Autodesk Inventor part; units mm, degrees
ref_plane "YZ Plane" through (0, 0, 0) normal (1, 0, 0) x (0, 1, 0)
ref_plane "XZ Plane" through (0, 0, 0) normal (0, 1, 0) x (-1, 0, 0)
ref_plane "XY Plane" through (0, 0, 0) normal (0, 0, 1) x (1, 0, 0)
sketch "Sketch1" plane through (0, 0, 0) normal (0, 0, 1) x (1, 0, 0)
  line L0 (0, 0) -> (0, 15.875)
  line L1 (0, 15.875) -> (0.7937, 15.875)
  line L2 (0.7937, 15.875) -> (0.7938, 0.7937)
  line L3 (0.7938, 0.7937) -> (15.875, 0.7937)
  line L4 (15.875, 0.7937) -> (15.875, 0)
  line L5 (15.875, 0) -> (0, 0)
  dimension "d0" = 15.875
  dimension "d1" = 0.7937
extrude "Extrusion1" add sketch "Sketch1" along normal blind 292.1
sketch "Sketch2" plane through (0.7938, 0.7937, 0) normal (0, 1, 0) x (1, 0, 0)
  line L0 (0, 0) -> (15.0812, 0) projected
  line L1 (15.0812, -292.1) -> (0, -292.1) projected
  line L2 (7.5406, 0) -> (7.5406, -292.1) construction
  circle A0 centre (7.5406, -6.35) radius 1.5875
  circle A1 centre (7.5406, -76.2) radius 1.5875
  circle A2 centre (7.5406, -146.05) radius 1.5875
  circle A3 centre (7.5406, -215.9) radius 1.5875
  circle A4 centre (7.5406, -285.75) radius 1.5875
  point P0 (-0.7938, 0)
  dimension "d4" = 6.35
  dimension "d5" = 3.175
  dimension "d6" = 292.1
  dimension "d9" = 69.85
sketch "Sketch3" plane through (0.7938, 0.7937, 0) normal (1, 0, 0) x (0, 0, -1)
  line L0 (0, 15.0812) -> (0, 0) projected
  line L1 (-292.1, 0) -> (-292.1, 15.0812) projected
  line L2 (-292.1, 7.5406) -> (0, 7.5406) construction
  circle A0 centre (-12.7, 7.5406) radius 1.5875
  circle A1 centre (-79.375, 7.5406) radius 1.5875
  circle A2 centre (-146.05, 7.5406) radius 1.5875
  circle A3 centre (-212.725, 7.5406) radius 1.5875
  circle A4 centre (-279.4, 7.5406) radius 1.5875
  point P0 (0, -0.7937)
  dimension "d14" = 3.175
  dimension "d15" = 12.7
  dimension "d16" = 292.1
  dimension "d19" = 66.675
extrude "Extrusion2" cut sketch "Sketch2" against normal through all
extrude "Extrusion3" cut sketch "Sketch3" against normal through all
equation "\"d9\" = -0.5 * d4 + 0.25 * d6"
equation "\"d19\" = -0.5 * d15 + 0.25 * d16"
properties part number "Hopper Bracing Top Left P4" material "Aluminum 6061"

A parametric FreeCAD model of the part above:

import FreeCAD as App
import Part
import Sketcher
Q = App.Units.Quantity


def add_polygon(sketch, points):
    """Adds a closed chain of lines whose ends are joined by coincident constraints."""
    first, n = sketch.GeometryCount, len(points)
    for a, b in zip(points, points[1:] + points[:1]):
        sketch.addGeometry(Part.LineSegment(App.Vector(*a, 0), App.Vector(*b, 0)), False)
    for i in range(n):
        sketch.addConstraint(Sketcher.Constraint("Coincident", first + i, 2, first + (i + 1) % n, 1))

doc = App.newDocument("Part")
params = doc.addObject("Spreadsheet::Sheet", "Params")
for row, (alias, value) in enumerate([
    ("sketch1_width", "0.625 in"),
    ("sketch1_width2", "0.031248 in"),
    ("pad1_length", "11.5 in"),
    ("sketch2_diameter", "0.125 in"),
    ("sketch3_diameter", "0.125 in"),
], start=1):
    params.set(f"A{row}", alias)
    params.set(f"B{row}", "=" + value)
    params.setAlias(f"B{row}", alias)

body = doc.addObject("PartDesign::Body", "Body")

# Sketch on XY plane
sketch1 = body.newObject("Sketcher::SketchObject", "Sketch")
sketch1.AttachmentSupport = (doc.getObject("XY_Plane"), [""])
sketch1.MapMode = "FlatFace"
add_polygon(sketch1, [(0, 15.9), (0, 0), (15.9, 0), (15.9, 0.8), (0.8, 0.8), (0.8, 15.9)])  # lines 0-5
sketch1.addConstraint(Sketcher.Constraint("Vertical", 0))
sketch1.addConstraint(Sketcher.Constraint("Horizontal", 1))
sketch1.addConstraint(Sketcher.Constraint("Vertical", 2))
sketch1.addConstraint(Sketcher.Constraint("Horizontal", 3))
sketch1.addConstraint(Sketcher.Constraint("Vertical", 4))
sketch1.addConstraint(Sketcher.Constraint("Horizontal", 5))
sketch1.addConstraint(Sketcher.Constraint("Coincident", 0, 2, -1, 1))
sketch1.addConstraint(Sketcher.Constraint("Equal", 1, 0))
sketch1.addConstraint(Sketcher.Constraint("Equal", 5, 2))
sketch1.addConstraint(Sketcher.Constraint("DistanceX", 1, 1, 1, 2, Q("0.625 in")))
sketch1.addConstraint(Sketcher.Constraint("DistanceX", 5, 2, 5, 1, Q("0.031248 in")))
sketch1.setExpression("Constraints[15]", "Params.sketch1_width")
sketch1.setExpression("Constraints[16]", "Params.sketch1_width2")
pad1 = body.newObject("PartDesign::Pad", "Pad")
pad1.Profile = sketch1
pad1.setExpression("Length", "Params.pad1_length")

# Sketch on XZ plane
sketch2 = body.newObject("Sketcher::SketchObject", "Sketch001")
sketch2.AttachmentSupport = (doc.getObject("XZ_Plane"), [""])
sketch2.MapMode = "FlatFace"
sketch2.AttachmentOffset = App.Placement(App.Vector(0, 0, -0.031248 * 25.4), App.Rotation())
sketch2.addGeometry(Part.Circle(App.Vector(8.3, 6.3, 0), App.Vector(0, 0, 1), 1.6), False)
sketch2.addGeometry(Part.Circle(App.Vector(8.3, 76.2, 0), App.Vector(0, 0, 1), 1.6), False)
sketch2.addGeometry(Part.Circle(App.Vector(8.3, 146.1, 0), App.Vector(0, 0, 1), 1.6), False)
sketch2.addGeometry(Part.Circle(App.Vector(8.3, 215.9, 0), App.Vector(0, 0, 1), 1.6), False)
sketch2.addGeometry(Part.Circle(App.Vector(8.3, 285.8, 0), App.Vector(0, 0, 1), 1.6), False)
sketch2.addConstraint(Sketcher.Constraint("Equal", 0, 1))
sketch2.addConstraint(Sketcher.Constraint("Equal", 1, 2))
sketch2.addConstraint(Sketcher.Constraint("Equal", 2, 3))
sketch2.addConstraint(Sketcher.Constraint("Equal", 3, 4))
sketch2.addConstraint(Sketcher.Constraint("Vertical", 0, 3, 1, 3))
sketch2.addConstraint(Sketcher.Constraint("Vertical", 1, 3, 2, 3))
sketch2.addConstraint(Sketcher.Constraint("Vertical", 2, 3, 3, 3))
sketch2.addConstraint(Sketcher.Constraint("Vertical", 3, 3, 4, 3))
sketch2.addConstraint(Sketcher.Constraint("Diameter", 0, Q("0.125 in")))
sketch2.addConstraint(Sketcher.Constraint("DistanceY", -1, 1, 0, 3, Q("0.25 in")))
sketch2.addConstraint(Sketcher.Constraint("DistanceY", 0, 3, 1, 3, Q("2.75 in")))
sketch2.addConstraint(Sketcher.Constraint("DistanceY", 1, 3, 2, 3, Q("2.75 in")))
sketch2.addConstraint(Sketcher.Constraint("DistanceY", 2, 3, 3, 3, Q("2.75 in")))
sketch2.addConstraint(Sketcher.Constraint("DistanceY", 3, 3, 4, 3, Q("2.75 in")))
sketch2.addConstraint(Sketcher.Constraint("DistanceX", -1, 1, 0, 3, Q("0.328126 in")))
sketch2.setExpression("Constraints[8]", "Params.sketch2_diameter")
pocket1 = body.newObject("PartDesign::Pocket", "Pocket")
pocket1.Profile = sketch2
pocket1.Type = "ThroughAll"
pocket1.Reversed = True

# Sketch on YZ plane
sketch3 = body.newObject("Sketcher::SketchObject", "Sketch002")
sketch3.AttachmentSupport = (doc.getObject("YZ_Plane"), [""])
sketch3.MapMode = "FlatFace"
sketch3.AttachmentOffset = App.Placement(App.Vector(0, 0, 0.031252 * 25.4), App.Rotation())
sketch3.addGeometry(Part.Circle(App.Vector(8.3, 12.7, 0), App.Vector(0, 0, 1), 1.6), False)
sketch3.addGeometry(Part.Circle(App.Vector(8.3, 79.4, 0), App.Vector(0, 0, 1), 1.6), False)
sketch3.addGeometry(Part.Circle(App.Vector(8.3, 146.1, 0), App.Vector(0, 0, 1), 1.6), False)
sketch3.addGeometry(Part.Circle(App.Vector(8.3, 212.7, 0), App.Vector(0, 0, 1), 1.6), False)
sketch3.addGeometry(Part.Circle(App.Vector(8.3, 279.4, 0), App.Vector(0, 0, 1), 1.6), False)
sketch3.addConstraint(Sketcher.Constraint("Equal", 0, 1))
sketch3.addConstraint(Sketcher.Constraint("Equal", 1, 2))
sketch3.addConstraint(Sketcher.Constraint("Equal", 2, 3))
sketch3.addConstraint(Sketcher.Constraint("Equal", 3, 4))
sketch3.addConstraint(Sketcher.Constraint("Vertical", 0, 3, 1, 3))
sketch3.addConstraint(Sketcher.Constraint("Vertical", 1, 3, 2, 3))
sketch3.addConstraint(Sketcher.Constraint("Vertical", 2, 3, 3, 3))
sketch3.addConstraint(Sketcher.Constraint("Vertical", 3, 3, 4, 3))
sketch3.addConstraint(Sketcher.Constraint("Diameter", 0, Q("0.125 in")))
sketch3.addConstraint(Sketcher.Constraint("DistanceY", -1, 1, 0, 3, Q("0.5 in")))
sketch3.addConstraint(Sketcher.Constraint("DistanceY", -1, 1, 4, 3, Q("11 in")))
sketch3.addConstraint(Sketcher.Constraint("DistanceY", 0, 3, 1, 3, Q("2.625 in")))
sketch3.addConstraint(Sketcher.Constraint("DistanceY", 1, 3, 2, 3, Q("2.625 in")))
sketch3.addConstraint(Sketcher.Constraint("DistanceY", 2, 3, 3, 3, Q("2.625 in")))
sketch3.addConstraint(Sketcher.Constraint("DistanceX", -1, 1, 0, 3, Q("0.328122 in")))
sketch3.setExpression("Constraints[8]", "Params.sketch3_diameter")
pocket2 = body.newObject("PartDesign::Pocket", "Pocket001")
pocket2.Profile = sketch3
pocket2.Type = "ThroughAll"

doc.recompute()
